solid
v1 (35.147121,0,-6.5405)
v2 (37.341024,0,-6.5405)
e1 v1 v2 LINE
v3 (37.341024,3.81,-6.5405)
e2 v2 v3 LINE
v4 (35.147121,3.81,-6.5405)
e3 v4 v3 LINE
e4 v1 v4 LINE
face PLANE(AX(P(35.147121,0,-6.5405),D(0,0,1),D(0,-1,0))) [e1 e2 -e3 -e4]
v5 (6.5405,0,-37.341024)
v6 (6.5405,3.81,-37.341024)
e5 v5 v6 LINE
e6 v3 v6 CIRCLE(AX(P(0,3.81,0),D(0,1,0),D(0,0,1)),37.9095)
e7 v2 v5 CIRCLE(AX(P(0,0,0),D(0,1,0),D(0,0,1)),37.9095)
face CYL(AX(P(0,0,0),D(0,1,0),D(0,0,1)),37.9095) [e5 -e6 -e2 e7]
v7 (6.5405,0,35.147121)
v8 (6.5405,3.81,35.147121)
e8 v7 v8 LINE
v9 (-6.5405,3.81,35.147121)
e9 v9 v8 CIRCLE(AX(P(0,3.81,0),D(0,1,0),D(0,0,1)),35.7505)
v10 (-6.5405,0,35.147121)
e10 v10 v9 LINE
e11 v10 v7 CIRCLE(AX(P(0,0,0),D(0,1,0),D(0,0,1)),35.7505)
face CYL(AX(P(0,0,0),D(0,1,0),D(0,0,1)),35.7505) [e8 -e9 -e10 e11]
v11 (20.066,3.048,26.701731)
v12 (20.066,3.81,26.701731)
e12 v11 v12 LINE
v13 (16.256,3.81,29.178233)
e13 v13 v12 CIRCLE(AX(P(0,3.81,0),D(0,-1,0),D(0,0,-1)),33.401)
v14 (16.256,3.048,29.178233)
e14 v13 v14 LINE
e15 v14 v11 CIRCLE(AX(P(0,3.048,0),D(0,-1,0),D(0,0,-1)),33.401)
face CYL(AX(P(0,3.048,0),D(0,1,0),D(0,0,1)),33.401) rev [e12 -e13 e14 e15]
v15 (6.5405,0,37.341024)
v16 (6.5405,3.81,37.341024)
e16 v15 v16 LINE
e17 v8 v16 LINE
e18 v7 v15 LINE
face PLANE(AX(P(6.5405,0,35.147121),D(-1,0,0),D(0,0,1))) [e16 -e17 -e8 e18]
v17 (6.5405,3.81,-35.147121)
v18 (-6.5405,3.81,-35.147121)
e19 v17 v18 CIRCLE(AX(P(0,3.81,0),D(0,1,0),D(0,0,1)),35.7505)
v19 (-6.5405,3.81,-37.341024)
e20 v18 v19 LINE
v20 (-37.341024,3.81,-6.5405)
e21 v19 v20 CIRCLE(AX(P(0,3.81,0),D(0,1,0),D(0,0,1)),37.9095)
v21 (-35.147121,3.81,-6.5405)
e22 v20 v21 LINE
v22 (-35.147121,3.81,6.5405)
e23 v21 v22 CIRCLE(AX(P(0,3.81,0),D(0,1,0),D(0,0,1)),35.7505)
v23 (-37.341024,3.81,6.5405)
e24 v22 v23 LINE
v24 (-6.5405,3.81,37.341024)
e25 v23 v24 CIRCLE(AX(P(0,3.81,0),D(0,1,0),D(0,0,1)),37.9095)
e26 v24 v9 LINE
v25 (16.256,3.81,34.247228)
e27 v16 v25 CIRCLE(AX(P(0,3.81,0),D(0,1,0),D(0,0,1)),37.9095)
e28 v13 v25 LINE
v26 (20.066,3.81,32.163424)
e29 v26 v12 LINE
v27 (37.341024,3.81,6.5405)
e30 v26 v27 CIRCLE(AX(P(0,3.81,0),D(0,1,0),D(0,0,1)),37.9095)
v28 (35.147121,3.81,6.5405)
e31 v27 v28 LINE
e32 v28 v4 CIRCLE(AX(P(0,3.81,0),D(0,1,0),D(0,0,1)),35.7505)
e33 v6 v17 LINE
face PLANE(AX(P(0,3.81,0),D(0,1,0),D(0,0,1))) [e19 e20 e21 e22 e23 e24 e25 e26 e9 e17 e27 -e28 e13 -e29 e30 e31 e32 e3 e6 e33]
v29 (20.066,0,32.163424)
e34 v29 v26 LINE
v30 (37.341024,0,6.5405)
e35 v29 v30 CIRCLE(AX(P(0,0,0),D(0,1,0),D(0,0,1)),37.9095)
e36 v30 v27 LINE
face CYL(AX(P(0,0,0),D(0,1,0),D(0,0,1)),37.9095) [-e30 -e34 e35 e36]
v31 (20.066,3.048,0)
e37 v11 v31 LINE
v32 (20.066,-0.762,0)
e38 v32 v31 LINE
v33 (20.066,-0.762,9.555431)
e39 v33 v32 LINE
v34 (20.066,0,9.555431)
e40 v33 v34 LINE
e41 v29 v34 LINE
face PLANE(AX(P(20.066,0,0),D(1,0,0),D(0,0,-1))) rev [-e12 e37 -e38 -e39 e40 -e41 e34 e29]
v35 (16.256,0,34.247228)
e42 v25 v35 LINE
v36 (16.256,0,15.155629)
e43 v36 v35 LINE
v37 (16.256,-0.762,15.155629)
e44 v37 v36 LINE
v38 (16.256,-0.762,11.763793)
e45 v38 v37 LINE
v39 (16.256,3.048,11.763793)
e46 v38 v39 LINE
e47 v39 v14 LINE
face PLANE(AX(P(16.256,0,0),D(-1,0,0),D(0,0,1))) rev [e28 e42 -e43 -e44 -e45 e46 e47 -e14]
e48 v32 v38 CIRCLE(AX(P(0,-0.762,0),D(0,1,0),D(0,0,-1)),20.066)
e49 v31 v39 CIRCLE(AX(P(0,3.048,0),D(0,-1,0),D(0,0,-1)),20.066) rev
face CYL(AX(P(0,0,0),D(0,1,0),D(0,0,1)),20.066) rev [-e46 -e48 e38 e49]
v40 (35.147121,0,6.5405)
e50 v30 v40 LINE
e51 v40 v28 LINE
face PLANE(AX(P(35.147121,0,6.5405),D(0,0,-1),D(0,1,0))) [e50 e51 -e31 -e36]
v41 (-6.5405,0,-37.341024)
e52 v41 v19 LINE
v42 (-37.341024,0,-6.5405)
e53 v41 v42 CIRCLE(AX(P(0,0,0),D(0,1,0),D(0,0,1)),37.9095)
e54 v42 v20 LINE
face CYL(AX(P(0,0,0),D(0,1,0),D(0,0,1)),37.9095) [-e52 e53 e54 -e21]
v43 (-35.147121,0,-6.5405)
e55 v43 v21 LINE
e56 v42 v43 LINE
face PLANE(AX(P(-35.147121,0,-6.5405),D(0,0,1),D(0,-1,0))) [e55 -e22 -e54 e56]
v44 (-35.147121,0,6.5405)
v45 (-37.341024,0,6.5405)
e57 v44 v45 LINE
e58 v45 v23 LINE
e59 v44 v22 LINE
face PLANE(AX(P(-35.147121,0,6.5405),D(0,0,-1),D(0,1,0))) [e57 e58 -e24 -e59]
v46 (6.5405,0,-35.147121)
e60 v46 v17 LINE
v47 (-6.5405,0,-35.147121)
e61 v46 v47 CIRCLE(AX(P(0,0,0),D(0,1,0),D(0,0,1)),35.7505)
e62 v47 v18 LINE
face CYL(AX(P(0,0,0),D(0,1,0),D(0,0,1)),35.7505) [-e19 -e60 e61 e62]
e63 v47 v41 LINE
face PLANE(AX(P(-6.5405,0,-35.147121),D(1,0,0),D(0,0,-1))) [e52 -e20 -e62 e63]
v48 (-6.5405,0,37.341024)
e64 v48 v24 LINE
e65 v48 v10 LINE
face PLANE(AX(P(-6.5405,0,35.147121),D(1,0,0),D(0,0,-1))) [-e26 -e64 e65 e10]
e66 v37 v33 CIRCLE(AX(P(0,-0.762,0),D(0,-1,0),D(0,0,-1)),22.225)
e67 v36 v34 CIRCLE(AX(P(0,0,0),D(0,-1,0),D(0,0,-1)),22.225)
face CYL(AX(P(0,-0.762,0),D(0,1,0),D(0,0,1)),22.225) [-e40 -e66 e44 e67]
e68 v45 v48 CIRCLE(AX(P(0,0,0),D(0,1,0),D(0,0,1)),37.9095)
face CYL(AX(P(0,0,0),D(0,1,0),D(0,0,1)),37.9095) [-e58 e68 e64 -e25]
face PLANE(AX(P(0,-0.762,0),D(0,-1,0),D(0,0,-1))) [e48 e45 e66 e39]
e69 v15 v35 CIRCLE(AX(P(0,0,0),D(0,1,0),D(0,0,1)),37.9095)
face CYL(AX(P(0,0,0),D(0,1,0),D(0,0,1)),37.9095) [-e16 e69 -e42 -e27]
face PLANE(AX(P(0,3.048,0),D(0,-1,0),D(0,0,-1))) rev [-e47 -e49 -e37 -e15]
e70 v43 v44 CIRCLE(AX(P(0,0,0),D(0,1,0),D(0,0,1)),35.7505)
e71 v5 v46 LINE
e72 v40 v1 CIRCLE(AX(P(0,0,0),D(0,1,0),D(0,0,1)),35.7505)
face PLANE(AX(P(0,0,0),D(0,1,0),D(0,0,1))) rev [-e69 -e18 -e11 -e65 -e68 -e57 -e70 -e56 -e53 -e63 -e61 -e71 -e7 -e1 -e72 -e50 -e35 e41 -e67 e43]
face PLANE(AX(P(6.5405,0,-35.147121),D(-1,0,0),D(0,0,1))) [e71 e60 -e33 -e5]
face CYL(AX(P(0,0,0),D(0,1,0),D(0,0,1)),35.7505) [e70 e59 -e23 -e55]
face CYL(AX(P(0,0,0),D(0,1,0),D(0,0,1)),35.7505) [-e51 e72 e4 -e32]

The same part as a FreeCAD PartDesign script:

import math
import FreeCAD as App
import Part
import Sketcher
Q = App.Units.Quantity

doc = App.newDocument("Part")
body = doc.addObject("PartDesign::Body", "Body")

sketch1 = body.newObject("Sketcher::SketchObject", "Sketch")
sketch1.AttachmentSupport = (doc.getObject("XZ_Plane"), [""])
sketch1.MapMode = "FlatFace"
sketch1.addGeometry(Part.LineSegment(App.Vector(35.1, -6.5, 0), App.Vector(37.3, -6.5, 0)), False)
sketch1.addGeometry(Part.ArcOfCircle(Part.Circle(App.Vector(0, 0, 0), App.Vector(0, 0, 1), 37.9), math.radians(-80), math.radians(-10)), False)
sketch1.addGeometry(Part.LineSegment(App.Vector(6.5, -37.3, 0), App.Vector(6.5, -35.1, 0)), False)
sketch1.addGeometry(Part.ArcOfCircle(Part.Circle(App.Vector(0, 0, 0), App.Vector(0, 0, 1), 35.8), math.radians(-101), math.radians(-79)), False)
sketch1.addGeometry(Part.LineSegment(App.Vector(-6.5, -35.1, 0), App.Vector(-6.5, -37.3, 0)), False)
sketch1.addGeometry(Part.ArcOfCircle(Part.Circle(App.Vector(0, 0, 0), App.Vector(0, 0, 1), 37.9), math.radians(-170), math.radians(-100)), False)
sketch1.addGeometry(Part.LineSegment(App.Vector(-37.3, -6.5, 0), App.Vector(-35.1, -6.5, 0)), False)
sketch1.addGeometry(Part.ArcOfCircle(Part.Circle(App.Vector(0, 0, 0), App.Vector(0, 0, 1), 35.8), math.radians(169), math.radians(191)), False)
sketch1.addGeometry(Part.LineSegment(App.Vector(-35.1, 6.5, 0), App.Vector(-37.3, 6.5, 0)), False)
sketch1.addGeometry(Part.ArcOfCircle(Part.Circle(App.Vector(0, 0, 0), App.Vector(0, 0, 1), 37.9), math.radians(100), math.radians(170)), False)
sketch1.addGeometry(Part.LineSegment(App.Vector(-6.5, 37.3, 0), App.Vector(-6.5, 35.1, 0)), False)
sketch1.addGeometry(Part.ArcOfCircle(Part.Circle(App.Vector(0, 0, 0), App.Vector(0, 0, 1), 35.8), math.radians(79), math.radians(101)), False)
sketch1.addGeometry(Part.LineSegment(App.Vector(6.5, 35.1, 0), App.Vector(6.5, 37.3, 0)), False)
sketch1.addGeometry(Part.ArcOfCircle(Part.Circle(App.Vector(0, 0, 0), App.Vector(0, 0, 1), 37.9), math.radians(10), math.radians(80)), False)
sketch1.addGeometry(Part.LineSegment(App.Vector(37.3, 6.5, 0), App.Vector(35.1, 6.5, 0)), False)
sketch1.addGeometry(Part.ArcOfCircle(Part.Circle(App.Vector(0, 0, 0), App.Vector(0, 0, 1), 35.8), math.radians(-11), math.radians(11)), False)
sketch1.addGeometry(Part.Circle(App.Vector(0, 0, 0), App.Vector(0, 0, 1), 15.2), False)
sketch1.addConstraint(Sketcher.Constraint("Coincident", 0, 2, 1, 2))
sketch1.addConstraint(Sketcher.Constraint("Coincident", 1, 1, 2, 1))
sketch1.addConstraint(Sketcher.Constraint("Coincident", 2, 2, 3, 2))
sketch1.addConstraint(Sketcher.Constraint("Coincident", 3, 1, 4, 1))
sketch1.addConstraint(Sketcher.Constraint("Coincident", 4, 2, 5, 2))
sketch1.addConstraint(Sketcher.Constraint("Coincident", 5, 1, 6, 1))
sketch1.addConstraint(Sketcher.Constraint("Coincident", 6, 2, 7, 2))
sketch1.addConstraint(Sketcher.Constraint("Coincident", 7, 1, 8, 1))
sketch1.addConstraint(Sketcher.Constraint("Coincident", 8, 2, 9, 2))
sketch1.addConstraint(Sketcher.Constraint("Coincident", 9, 1, 10, 1))
sketch1.addConstraint(Sketcher.Constraint("Coincident", 10, 2, 11, 2))
sketch1.addConstraint(Sketcher.Constraint("Coincident", 11, 1, 12, 1))
sketch1.addConstraint(Sketcher.Constraint("Coincident", 12, 2, 13, 2))
sketch1.addConstraint(Sketcher.Constraint("Coincident", 13, 1, 14, 1))
sketch1.addConstraint(Sketcher.Constraint("Coincident", 14, 2, 15, 2))
sketch1.addConstraint(Sketcher.Constraint("Coincident", 15, 1, 0, 1))
sketch1.addConstraint(Sketcher.Constraint("Horizontal", 0))
sketch1.addConstraint(Sketcher.Constraint("Vertical", 2))
sketch1.addConstraint(Sketcher.Constraint("Vertical", 4))
sketch1.addConstraint(Sketcher.Constraint("Horizontal", 6))
sketch1.addConstraint(Sketcher.Constraint("Horizontal", 8))
sketch1.addConstraint(Sketcher.Constraint("Vertical", 10))
sketch1.addConstraint(Sketcher.Constraint("Vertical", 12))
sketch1.addConstraint(Sketcher.Constraint("Horizontal", 14))
sketch1.addConstraint(Sketcher.Constraint("Coincident", 1, 3, -1, 1))
sketch1.addConstraint(Sketcher.Constraint("Coincident", 3, 3, -1, 1))
sketch1.addConstraint(Sketcher.Constraint("Coincident", 5, 3, -1, 1))
sketch1.addConstraint(Sketcher.Constraint("Coincident", 7, 3, -1, 1))
sketch1.addConstraint(Sketcher.Constraint("Coincident", 9, 3, -1, 1))
sketch1.addConstraint(Sketcher.Constraint("Coincident", 11, 3, -1, 1))
sketch1.addConstraint(Sketcher.Constraint("Coincident", 13, 3, -1, 1))
sketch1.addConstraint(Sketcher.Constraint("Coincident", 15, 3, -1, 1))
sketch1.addConstraint(Sketcher.Constraint("Coincident", 16, 3, -1, 1))
sketch1.addConstraint(Sketcher.Constraint("Equal", 1, 5))
sketch1.addConstraint(Sketcher.Constraint("Equal", 3, 7))
sketch1.addConstraint(Sketcher.Constraint("Equal", 5, 9))
sketch1.addConstraint(Sketcher.Constraint("Equal", 7, 11))
sketch1.addConstraint(Sketcher.Constraint("Equal", 9, 13))
sketch1.addConstraint(Sketcher.Constraint("Equal", 11, 15))
sketch1.addConstraint(Sketcher.Constraint("Horizontal", 2, 2, 3, 1))
sketch1.addConstraint(Sketcher.Constraint("Horizontal", 0, 2, 5, 1))
sketch1.addConstraint(Sketcher.Constraint("Horizontal", 10, 2, 11, 1))
sketch1.addConstraint(Sketcher.Constraint("Horizontal", 8, 2, 13, 1))
sketch1.addConstraint(Sketcher.Constraint("Vertical", 6, 2, 7, 1))
sketch1.addConstraint(Sketcher.Constraint("Vertical", 4, 2, 9, 1))
sketch1.addConstraint(Sketcher.Constraint("Equal", 14, 2))
sketch1.addConstraint(Sketcher.Constraint("Diameter", 16, Q("1.2 in")))
sketch1.addConstraint(Sketcher.Constraint("Radius", 1, Q("1.4925 in")))
sketch1.addConstraint(Sketcher.Constraint("Radius", 3, Q("1.4075 in")))
sketch1.addConstraint(Sketcher.Constraint("DistanceX", 3, 1, 2, 2, Q("0.515 in")))

sketch2 = body.newObject("Sketcher::SketchObject", "Sketch001")
sketch2.AttachmentSupport = (doc.getObject("XY_Plane"), [""])
sketch2.MapMode = "FlatFace"
sketch2.AttachmentOffset = App.Placement(App.Vector(0, 0, -1.41 * 25.4), App.Rotation())
sketch2.addGeometry(Part.LineSegment(App.Vector(0, 0, 0), App.Vector(0, 3.8, 0)), False)
sketch2.addConstraint(Sketcher.Constraint("Vertical", 0))
sketch2.addConstraint(Sketcher.Constraint("Coincident", 0, 1, -1, 1))
sketch2.addConstraint(Sketcher.Constraint("DistanceY", 0, 1, 0, 2, Q("0.15 in")))
doc.recompute()

additivepipe = body.newObject("PartDesign::AdditivePipe", "AdditivePipe")
additivepipe.Profile = sketch1
additivepipe.Spine = (sketch2, ["Edge1"])

sketch3 = body.newObject("Sketcher::SketchObject", "Sketch002")
sketch3.AttachmentSupport = (doc.getObject("XZ_Plane"), [""])
sketch3.MapMode = "FlatFace"
sketch3.AttachmentOffset = App.Placement(App.Vector(0, 0, -0.15 * 25.4), App.Rotation())
sketch3.addGeometry(Part.LineSegment(App.Vector(16.3, 37.2, 0), App.Vector(16.3, 11.8, 0)), False)
sketch3.addGeometry(Part.ArcOfCircle(Part.Circle(App.Vector(0, 0, 0), App.Vector(0, 0, 1), 20.1), math.radians(36), math.radians(360)), False)
sketch3.addGeometry(Part.LineSegment(App.Vector(20.1, 0, 0), App.Vector(20.1, 35.3, 0)), False)
sketch3.addGeometry(Part.ArcOfCircle(Part.Circle(App.Vector(0, 0, 0), App.Vector(0, 0, 1), 40.6), math.radians(60.4), math.radians(66.42)), False)
sketch3.addConstraint(Sketcher.Constraint("Coincident", 0, 2, 1, 1))
sketch3.addConstraint(Sketcher.Constraint("Tangent", 1, 2, 2, 1))
sketch3.addConstraint(Sketcher.Constraint("Coincident", 2, 2, 3, 1))
sketch3.addConstraint(Sketcher.Constraint("Coincident", 3, 2, 0, 1))
sketch3.addConstraint(Sketcher.Constraint("Vertical", 0))
sketch3.addConstraint(Sketcher.Constraint("Vertical", 2))
sketch3.addConstraint(Sketcher.Constraint("Coincident", 1, 3, -1, 1))
sketch3.addConstraint(Sketcher.Constraint("Coincident", 3, 3, -1, 1))
sketch3.addConstraint(Sketcher.Constraint("Radius", 1, Q("0.79 in")))
sketch3.addConstraint(Sketcher.Constraint("DistanceX", -1, 1, 0, 2, Q("0.64 in")))
sketch3.addConstraint(Sketcher.Constraint("Radius", 3, 40.629338))
pocket1 = body.newObject("PartDesign::Pocket", "Pocket")
pocket1.Profile = sketch3
pocket1.Length = Q("0.15 in")
pocket1.Reversed = True

sketch4 = body.newObject("Sketcher::SketchObject", "Sketch003")
sketch4.AttachmentSupport = (doc.getObject("XZ_Plane"), [""])
sketch4.MapMode = "FlatFace"
sketch4.AttachmentOffset = App.Placement(App.Vector(0, 0, -0.15 * 25.4), App.Rotation())
sketch4.addGeometry(Part.Circle(App.Vector(0, 0, 0), App.Vector(0, 0, 1), 33), False)
sketch4.addConstraint(Sketcher.Constraint("Coincident", 0, 3, -1, 1))
sketch4.addConstraint(Sketcher.Constraint("Diameter", 0, Q("2.63 in")))
pocket2 = body.newObject("PartDesign::Pocket", "Pocket001")
pocket2.Profile = sketch4
pocket2.Length = Q("0.03 in")
pocket2.Reversed = True

sketch5 = body.newObject("Sketcher::SketchObject", "Sketch004")
sketch5.AttachmentSupport = (doc.getObject("XZ_Plane"), [""])
sketch5.MapMode = "FlatFace"
sketch5.addGeometry(Part.LineSegment(App.Vector(16.3, 11.8, 0), App.Vector(16.3, 15.2, 0)), False)
sketch5.addGeometry(Part.ArcOfCircle(Part.Circle(App.Vector(0, 0, 0), App.Vector(0, 0, 1), 22.2), math.radians(43), math.radians(385)), False)
sketch5.addGeometry(Part.LineSegment(App.Vector(20.1, 9.6, 0), App.Vector(20.1, 0, 0)), False)
sketch5.addGeometry(Part.ArcOfCircle(Part.Circle(App.Vector(0, 0, 0), App.Vector(0, 0, 1), 20.1), math.radians(36), math.radians(360)), False)
sketch5.addConstraint(Sketcher.Constraint("Coincident", 0, 2, 1, 1))
sketch5.addConstraint(Sketcher.Constraint("Coincident", 1, 2, 2, 1))
sketch5.addConstraint(Sketcher.Constraint("Tangent", 2, 2, 3, 2))
sketch5.addConstraint(Sketcher.Constraint("Coincident", 3, 1, 0, 1))
sketch5.addConstraint(Sketcher.Constraint("Vertical", 0))
sketch5.addConstraint(Sketcher.Constraint("Vertical", 2))
sketch5.addConstraint(Sketcher.Constraint("Coincident", 1, 3, -1, 1))
sketch5.addConstraint(Sketcher.Constraint("Coincident", 3, 3, -1, 1))
sketch5.addConstraint(Sketcher.Constraint("Radius", 3, Q("0.79 in")))
sketch5.addConstraint(Sketcher.Constraint("Radius", 1, Q("0.875 in")))
sketch5.addConstraint(Sketcher.Constraint("DistanceX", -1, 1, 0, 2, Q("0.64 in")))
pad1 = body.newObject("PartDesign::Pad", "Pad")
pad1.Profile = sketch5
pad1.Length = Q("0.03 in")

doc.recompute()
